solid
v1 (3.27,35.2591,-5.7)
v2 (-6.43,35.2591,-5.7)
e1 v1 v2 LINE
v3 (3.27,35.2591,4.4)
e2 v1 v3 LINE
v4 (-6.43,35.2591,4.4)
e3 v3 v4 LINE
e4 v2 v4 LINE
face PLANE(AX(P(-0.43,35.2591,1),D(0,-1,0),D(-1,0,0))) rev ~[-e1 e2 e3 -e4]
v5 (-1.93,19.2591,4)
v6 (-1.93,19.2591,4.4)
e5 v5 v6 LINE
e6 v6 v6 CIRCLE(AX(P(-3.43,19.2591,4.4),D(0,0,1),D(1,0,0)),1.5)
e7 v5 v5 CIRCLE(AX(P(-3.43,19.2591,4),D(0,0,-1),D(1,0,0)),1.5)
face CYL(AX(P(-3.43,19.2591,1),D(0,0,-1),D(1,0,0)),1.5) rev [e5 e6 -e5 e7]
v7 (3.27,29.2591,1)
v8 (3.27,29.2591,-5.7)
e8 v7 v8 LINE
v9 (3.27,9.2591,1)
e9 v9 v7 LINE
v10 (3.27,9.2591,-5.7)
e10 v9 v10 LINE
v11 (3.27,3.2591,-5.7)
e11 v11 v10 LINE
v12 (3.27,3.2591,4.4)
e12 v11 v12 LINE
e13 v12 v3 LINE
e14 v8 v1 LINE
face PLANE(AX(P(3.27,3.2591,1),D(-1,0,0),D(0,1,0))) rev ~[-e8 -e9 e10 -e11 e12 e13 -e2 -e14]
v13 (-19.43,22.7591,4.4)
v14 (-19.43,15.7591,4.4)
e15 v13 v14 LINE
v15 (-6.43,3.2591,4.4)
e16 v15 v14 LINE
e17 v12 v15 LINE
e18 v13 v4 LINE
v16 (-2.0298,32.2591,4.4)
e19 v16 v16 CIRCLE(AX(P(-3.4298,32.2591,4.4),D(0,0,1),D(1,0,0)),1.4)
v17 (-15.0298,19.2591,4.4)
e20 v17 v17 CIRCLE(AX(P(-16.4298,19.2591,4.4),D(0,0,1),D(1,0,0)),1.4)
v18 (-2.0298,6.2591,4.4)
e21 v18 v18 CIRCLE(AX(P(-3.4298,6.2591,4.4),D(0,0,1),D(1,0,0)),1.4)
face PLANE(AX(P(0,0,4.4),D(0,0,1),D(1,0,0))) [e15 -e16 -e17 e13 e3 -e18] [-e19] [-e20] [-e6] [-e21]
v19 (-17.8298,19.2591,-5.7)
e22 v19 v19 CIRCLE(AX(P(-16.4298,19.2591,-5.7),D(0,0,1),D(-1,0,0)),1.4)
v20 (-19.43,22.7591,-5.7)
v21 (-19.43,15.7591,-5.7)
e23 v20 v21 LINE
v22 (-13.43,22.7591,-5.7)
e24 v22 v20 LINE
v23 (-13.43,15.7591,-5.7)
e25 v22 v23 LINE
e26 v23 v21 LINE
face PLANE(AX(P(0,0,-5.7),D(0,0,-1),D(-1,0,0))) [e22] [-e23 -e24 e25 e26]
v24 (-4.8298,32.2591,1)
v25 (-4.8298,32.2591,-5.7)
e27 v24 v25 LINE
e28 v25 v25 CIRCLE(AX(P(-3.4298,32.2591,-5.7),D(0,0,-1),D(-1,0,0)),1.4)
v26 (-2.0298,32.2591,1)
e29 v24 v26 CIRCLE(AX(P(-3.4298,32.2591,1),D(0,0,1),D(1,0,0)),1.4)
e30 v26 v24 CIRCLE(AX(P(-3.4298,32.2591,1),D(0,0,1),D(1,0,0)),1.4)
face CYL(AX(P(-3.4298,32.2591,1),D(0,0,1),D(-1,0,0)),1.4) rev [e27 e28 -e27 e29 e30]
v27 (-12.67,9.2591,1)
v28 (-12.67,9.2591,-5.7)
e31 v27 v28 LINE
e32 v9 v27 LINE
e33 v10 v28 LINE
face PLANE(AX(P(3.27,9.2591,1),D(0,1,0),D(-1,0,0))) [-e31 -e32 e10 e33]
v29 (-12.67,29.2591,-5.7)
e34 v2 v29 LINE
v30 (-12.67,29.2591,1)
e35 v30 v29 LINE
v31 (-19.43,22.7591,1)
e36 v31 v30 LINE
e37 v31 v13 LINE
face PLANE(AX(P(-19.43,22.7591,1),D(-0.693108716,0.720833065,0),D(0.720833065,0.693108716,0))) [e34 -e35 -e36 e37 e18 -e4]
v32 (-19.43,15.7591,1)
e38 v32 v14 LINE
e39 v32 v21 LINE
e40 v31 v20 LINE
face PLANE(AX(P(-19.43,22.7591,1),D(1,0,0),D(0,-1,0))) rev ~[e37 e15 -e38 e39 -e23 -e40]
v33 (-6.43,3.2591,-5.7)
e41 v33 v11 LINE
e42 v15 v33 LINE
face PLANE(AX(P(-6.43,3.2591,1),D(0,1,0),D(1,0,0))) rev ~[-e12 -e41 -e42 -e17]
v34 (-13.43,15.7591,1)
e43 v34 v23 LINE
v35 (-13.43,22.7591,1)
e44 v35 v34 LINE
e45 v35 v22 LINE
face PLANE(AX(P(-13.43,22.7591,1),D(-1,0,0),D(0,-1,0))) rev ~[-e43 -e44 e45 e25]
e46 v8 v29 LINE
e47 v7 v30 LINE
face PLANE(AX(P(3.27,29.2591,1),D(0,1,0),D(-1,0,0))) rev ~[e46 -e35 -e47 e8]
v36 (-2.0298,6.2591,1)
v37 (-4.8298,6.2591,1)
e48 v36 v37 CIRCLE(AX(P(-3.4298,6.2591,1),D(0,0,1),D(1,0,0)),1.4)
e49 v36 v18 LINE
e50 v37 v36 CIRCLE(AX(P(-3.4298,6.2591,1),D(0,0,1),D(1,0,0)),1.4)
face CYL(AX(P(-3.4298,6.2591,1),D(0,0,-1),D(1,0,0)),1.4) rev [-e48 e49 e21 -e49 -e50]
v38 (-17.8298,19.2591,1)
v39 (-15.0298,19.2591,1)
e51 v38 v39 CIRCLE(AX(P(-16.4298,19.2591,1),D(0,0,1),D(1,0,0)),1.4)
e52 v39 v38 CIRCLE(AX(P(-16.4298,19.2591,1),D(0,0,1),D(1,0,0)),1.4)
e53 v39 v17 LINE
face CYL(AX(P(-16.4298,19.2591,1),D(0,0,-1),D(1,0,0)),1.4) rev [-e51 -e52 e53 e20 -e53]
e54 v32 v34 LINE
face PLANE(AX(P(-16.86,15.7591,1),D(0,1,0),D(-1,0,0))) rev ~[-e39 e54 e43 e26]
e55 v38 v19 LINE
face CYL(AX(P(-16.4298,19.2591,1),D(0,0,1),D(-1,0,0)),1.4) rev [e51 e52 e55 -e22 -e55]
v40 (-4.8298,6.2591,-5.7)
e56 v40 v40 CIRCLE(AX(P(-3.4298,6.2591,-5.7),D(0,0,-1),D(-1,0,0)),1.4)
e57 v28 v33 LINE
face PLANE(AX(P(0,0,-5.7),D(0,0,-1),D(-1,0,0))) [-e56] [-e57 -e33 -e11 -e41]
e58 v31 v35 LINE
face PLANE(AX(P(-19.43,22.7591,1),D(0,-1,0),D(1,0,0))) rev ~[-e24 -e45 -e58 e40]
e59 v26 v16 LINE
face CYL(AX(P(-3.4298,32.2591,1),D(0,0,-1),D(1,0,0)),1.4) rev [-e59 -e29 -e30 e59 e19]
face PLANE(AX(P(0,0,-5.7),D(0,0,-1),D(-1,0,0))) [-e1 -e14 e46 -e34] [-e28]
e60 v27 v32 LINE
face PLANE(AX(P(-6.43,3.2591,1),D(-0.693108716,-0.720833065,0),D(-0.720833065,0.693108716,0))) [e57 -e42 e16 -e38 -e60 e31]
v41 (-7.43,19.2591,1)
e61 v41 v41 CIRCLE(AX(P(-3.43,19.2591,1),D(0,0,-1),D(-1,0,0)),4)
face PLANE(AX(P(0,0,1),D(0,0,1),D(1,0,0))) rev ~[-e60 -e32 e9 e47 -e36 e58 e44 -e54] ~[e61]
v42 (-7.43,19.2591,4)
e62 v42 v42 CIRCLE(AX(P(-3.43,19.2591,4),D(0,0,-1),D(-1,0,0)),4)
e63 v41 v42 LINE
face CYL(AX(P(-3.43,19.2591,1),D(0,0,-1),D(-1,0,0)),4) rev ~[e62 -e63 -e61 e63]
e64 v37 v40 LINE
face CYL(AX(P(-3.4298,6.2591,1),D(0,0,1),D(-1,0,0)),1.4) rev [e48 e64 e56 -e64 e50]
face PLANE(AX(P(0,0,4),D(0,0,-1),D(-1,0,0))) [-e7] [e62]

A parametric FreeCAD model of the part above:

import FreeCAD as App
import Part
import Sketcher

V = App.Vector

doc = App.newDocument("Part")
body = doc.addObject("PartDesign::Body", "Body")

# Sketch on XY plane
sketch1 = body.newObject("Sketcher::SketchObject", "Sketch")
sketch1.AttachmentSupport = (doc.getObject("XY_Plane"), [""])
sketch1.MapMode = "FlatFace"
sketch1.AttachmentOffset = App.Placement(V(0, 0, 1), App.Rotation())
sketch1.addGeometry([
    Part.LineSegment(V(-6.4, 3.3, 0), V(3.3, 3.3, 0)),  # 0
    Part.LineSegment(V(3.3, 3.3, 0), V(3.3, 35.3, 0)),  # 1
    Part.LineSegment(V(3.3, 35.3, 0), V(-6.4, 35.3, 0)),  # 2
    Part.LineSegment(V(-6.4, 35.3, 0), V(-19.4, 22.8, 0)),  # 3
    Part.LineSegment(V(-19.4, 22.8, 0), V(-19.4, 15.8, 0)),  # 4
    Part.LineSegment(V(-19.4, 15.8, 0), V(-6.4, 3.3, 0)),  # 5
    Part.Circle(V(-3.4, 6.3, 0), V(0, 0, 1), 1.4),  # 6
    Part.Circle(V(-3.4, 19.3, 0), V(0, 0, 1), 1.5),  # 7
    Part.Circle(V(-3.4, 32.3, 0), V(0, 0, 1), 1.4),  # 8
    Part.Circle(V(-16.4, 19.3, 0), V(0, 0, 1), 1.4),  # 9
], False)
sketch1.addConstraint([
    Sketcher.Constraint("Coincident", 0, 2, 1, 1),
    Sketcher.Constraint("Coincident", 1, 2, 2, 1),
    Sketcher.Constraint("Coincident", 2, 2, 3, 1),
    Sketcher.Constraint("Coincident", 3, 2, 4, 1),
    Sketcher.Constraint("Coincident", 4, 2, 5, 1),
    Sketcher.Constraint("Coincident", 5, 2, 0, 1),
    Sketcher.Constraint("Horizontal", 0),
    Sketcher.Constraint("Vertical", 1),
    Sketcher.Constraint("Horizontal", 2),
    Sketcher.Constraint("Vertical", 4),
    Sketcher.Constraint("Equal", 6, 8),
    Sketcher.Constraint("Equal", 8, 9),
    Sketcher.Constraint("Horizontal", 7, 3, 9, 3),
    Sketcher.Constraint("Vertical", 6, 3, 7, 3),
    Sketcher.Constraint("Vertical", 7, 3, 8, 3),
    Sketcher.Constraint("Vertical", 2, 2, 5, 2),
    Sketcher.Constraint("Equal", 3, 5),
    Sketcher.Constraint("Diameter", 7, 3.0),
    Sketcher.Constraint("DistanceY", 1, 1, 1, 2, 32.0),
    Sketcher.Constraint("DistanceY", 4, 2, 4, 1, 7.0),
    Sketcher.Constraint("DistanceY", 6, 3, 7, 3, 13.0),
    Sketcher.Constraint("DistanceY", 7, 3, 8, 3, 13.0),
    Sketcher.Constraint("DistanceX", 9, 3, 8, 3, 13.0),
    Sketcher.Constraint("DistanceY", 0, 2, 6, 3, 3.0),
    Sketcher.Constraint("DistanceX", 2, 2, 7, 3, 3.0),
    Sketcher.Constraint("DistanceX", 3, 2, 2, 2, 13.0),
    Sketcher.Constraint("Diameter", 6, 2.8),
    Sketcher.Constraint("DistanceX", 0, 1, 0, 2, 9.7),
    Sketcher.Constraint("DistanceX", 7, 3, -1, 1, 3.43),
    Sketcher.Constraint("DistanceY", -1, 1, 6, 3, 6.259),
])
pad1 = body.newObject("PartDesign::Pad", "Pad")
pad1.Profile = sketch1
pad1.Length = 3.4

# Sketch on XY plane
sketch2 = body.newObject("Sketcher::SketchObject", "Sketch001")
sketch2.AttachmentSupport = (doc.getObject("XY_Plane"), [""])
sketch2.MapMode = "FlatFace"
sketch2.AttachmentOffset = App.Placement(V(0, 0, 1), App.Rotation())
sketch2.addGeometry([
    Part.LineSegment(V(-19.4, 22.8, 0), V(-13.4, 22.8, 0)),  # 0
    Part.LineSegment(V(-13.4, 22.8, 0), V(-13.4, 15.8, 0)),  # 1
    Part.LineSegment(V(-13.4, 15.8, 0), V(-19.4, 15.8, 0)),  # 2
    Part.LineSegment(V(-19.4, 15.8, 0), V(-19.4, 22.8, 0)),  # 3
    Part.Circle(V(-16.4, 19.3, 0), V(0, 0, 1), 1.4),  # 4
    Part.LineSegment(V(3.3, 29.3, 0), V(-12.7, 29.3, 0)),  # 5
    Part.LineSegment(V(-12.7, 29.3, 0), V(-6.4, 35.3, 0)),  # 6
    Part.LineSegment(V(-6.4, 35.3, 0), V(3.3, 35.3, 0)),  # 7
    Part.LineSegment(V(3.3, 35.3, 0), V(3.3, 29.3, 0)),  # 8
    Part.Circle(V(-3.4, 32.3, 0), V(0, 0, 1), 1.4),  # 9
    Part.LineSegment(V(-12.7, 9.3, 0), V(3.3, 9.3, 0)),  # 10
    Part.LineSegment(V(3.3, 9.3, 0), V(3.3, 3.3, 0)),  # 11
    Part.LineSegment(V(3.3, 3.3, 0), V(-6.4, 3.3, 0)),  # 12
    Part.LineSegment(V(-6.4, 3.3, 0), V(-12.7, 9.3, 0)),  # 13
    Part.Circle(V(-3.4, 6.3, 0), V(0, 0, 1), 1.4),  # 14
], False)
sketch2.addConstraint([
    Sketcher.Constraint("Coincident", 0, 2, 1, 1),
    Sketcher.Constraint("Coincident", 1, 2, 2, 1),
    Sketcher.Constraint("Coincident", 2, 2, 3, 1),
    Sketcher.Constraint("Coincident", 3, 2, 0, 1),
    Sketcher.Constraint("Coincident", 5, 2, 6, 1),
    Sketcher.Constraint("Coincident", 6, 2, 7, 1),
    Sketcher.Constraint("Coincident", 7, 2, 8, 1),
    Sketcher.Constraint("Coincident", 8, 2, 5, 1),
    Sketcher.Constraint("Coincident", 10, 2, 11, 1),
    Sketcher.Constraint("Coincident", 11, 2, 12, 1),
    Sketcher.Constraint("Coincident", 12, 2, 13, 1),
    Sketcher.Constraint("Coincident", 13, 2, 10, 1),
    Sketcher.Constraint("Horizontal", 0),
    Sketcher.Constraint("Vertical", 1),
    Sketcher.Constraint("Horizontal", 2),
    Sketcher.Constraint("Vertical", 3),
    Sketcher.Constraint("Horizontal", 5),
    Sketcher.Constraint("Horizontal", 7),
    Sketcher.Constraint("Vertical", 8),
    Sketcher.Constraint("Horizontal", 10),
    Sketcher.Constraint("Vertical", 11),
    Sketcher.Constraint("Horizontal", 12),
    Sketcher.Constraint("Equal", 4, 9),
    Sketcher.Constraint("Equal", 9, 14),
    Sketcher.Constraint("Vertical", 9, 3, 14, 3),
    Sketcher.Constraint("Vertical", 8, 2, 10, 2),
    Sketcher.Constraint("Vertical", 6, 2, 12, 2),
    Sketcher.Constraint("Vertical", 5, 2, 13, 2),
    Sketcher.Constraint("Equal", 2, 8),
    Sketcher.Constraint("Equal", 8, 11),
    Sketcher.Constraint("DistanceX", 0, 1, 0, 2, 6.0),
    Sketcher.Constraint("Diameter", 4, 2.8),
    Sketcher.Constraint("DistanceY", 1, 2, 1, 1, 7.0),
    Sketcher.Constraint("DistanceX", 7, 1, 7, 2, 9.7),
    Sketcher.Constraint("DistanceX", 4, 3, 9, 3, 13.0),
    Sketcher.Constraint("DistanceY", 4, 3, 9, 3, 13.0),
    Sketcher.Constraint("DistanceY", 14, 3, 4, 3, 13.0),
    Sketcher.Constraint("DistanceY", 5, 2, 9, 3, 3.0),
    Sketcher.Constraint("DistanceX", 0, 2, 6, 2, 7.0),
    Sketcher.Constraint("DistanceY", 14, 3, 10, 2, 3.0),
    Sketcher.Constraint("DistanceX", 5, 2, 5, 1, 15.94),
    Sketcher.Constraint("DistanceY", 4, 3, 0, 2, 3.5),
    Sketcher.Constraint("DistanceX", 0, 2, -1, 1, 13.43),
    Sketcher.Constraint("DistanceY", -1, 1, 4, 3, 19.259),
    Sketcher.Constraint("DistanceX", 4, 3, -1, 1, 16.4298),
])
pad2 = body.newObject("PartDesign::Pad", "Pad001")
pad2.Profile = sketch2
pad2.Length = 6.7
pad2.Reversed = True

# Sketch on XY plane
sketch3 = body.newObject("Sketcher::SketchObject", "Sketch002")
sketch3.AttachmentSupport = (doc.getObject("XY_Plane"), [""])
sketch3.MapMode = "FlatFace"
sketch3.AttachmentOffset = App.Placement(V(0, 0, 1), App.Rotation())
sketch3.addGeometry([
    Part.Circle(V(-3.4, 19.3, 0), V(0, 0, 1), 4),
    Part.Circle(V(-3.4, 19.3, 0), V(0, 0, 1), 1.5),
], False)
sketch3.addConstraint([
    Sketcher.Constraint("Coincident", 1, 3, 0, 3),
    Sketcher.Constraint("Diameter", 0, 8.0),
    Sketcher.Constraint("Diameter", 1, 3.0),
    Sketcher.Constraint("DistanceX", 0, 3, -1, 1, 3.43),
    Sketcher.Constraint("DistanceY", -1, 1, 0, 3, 19.259),
])
pocket1 = body.newObject("PartDesign::Pocket", "Pocket")
pocket1.Profile = sketch3
pocket1.Length = 3
pocket1.Reversed = True

doc.recompute()
